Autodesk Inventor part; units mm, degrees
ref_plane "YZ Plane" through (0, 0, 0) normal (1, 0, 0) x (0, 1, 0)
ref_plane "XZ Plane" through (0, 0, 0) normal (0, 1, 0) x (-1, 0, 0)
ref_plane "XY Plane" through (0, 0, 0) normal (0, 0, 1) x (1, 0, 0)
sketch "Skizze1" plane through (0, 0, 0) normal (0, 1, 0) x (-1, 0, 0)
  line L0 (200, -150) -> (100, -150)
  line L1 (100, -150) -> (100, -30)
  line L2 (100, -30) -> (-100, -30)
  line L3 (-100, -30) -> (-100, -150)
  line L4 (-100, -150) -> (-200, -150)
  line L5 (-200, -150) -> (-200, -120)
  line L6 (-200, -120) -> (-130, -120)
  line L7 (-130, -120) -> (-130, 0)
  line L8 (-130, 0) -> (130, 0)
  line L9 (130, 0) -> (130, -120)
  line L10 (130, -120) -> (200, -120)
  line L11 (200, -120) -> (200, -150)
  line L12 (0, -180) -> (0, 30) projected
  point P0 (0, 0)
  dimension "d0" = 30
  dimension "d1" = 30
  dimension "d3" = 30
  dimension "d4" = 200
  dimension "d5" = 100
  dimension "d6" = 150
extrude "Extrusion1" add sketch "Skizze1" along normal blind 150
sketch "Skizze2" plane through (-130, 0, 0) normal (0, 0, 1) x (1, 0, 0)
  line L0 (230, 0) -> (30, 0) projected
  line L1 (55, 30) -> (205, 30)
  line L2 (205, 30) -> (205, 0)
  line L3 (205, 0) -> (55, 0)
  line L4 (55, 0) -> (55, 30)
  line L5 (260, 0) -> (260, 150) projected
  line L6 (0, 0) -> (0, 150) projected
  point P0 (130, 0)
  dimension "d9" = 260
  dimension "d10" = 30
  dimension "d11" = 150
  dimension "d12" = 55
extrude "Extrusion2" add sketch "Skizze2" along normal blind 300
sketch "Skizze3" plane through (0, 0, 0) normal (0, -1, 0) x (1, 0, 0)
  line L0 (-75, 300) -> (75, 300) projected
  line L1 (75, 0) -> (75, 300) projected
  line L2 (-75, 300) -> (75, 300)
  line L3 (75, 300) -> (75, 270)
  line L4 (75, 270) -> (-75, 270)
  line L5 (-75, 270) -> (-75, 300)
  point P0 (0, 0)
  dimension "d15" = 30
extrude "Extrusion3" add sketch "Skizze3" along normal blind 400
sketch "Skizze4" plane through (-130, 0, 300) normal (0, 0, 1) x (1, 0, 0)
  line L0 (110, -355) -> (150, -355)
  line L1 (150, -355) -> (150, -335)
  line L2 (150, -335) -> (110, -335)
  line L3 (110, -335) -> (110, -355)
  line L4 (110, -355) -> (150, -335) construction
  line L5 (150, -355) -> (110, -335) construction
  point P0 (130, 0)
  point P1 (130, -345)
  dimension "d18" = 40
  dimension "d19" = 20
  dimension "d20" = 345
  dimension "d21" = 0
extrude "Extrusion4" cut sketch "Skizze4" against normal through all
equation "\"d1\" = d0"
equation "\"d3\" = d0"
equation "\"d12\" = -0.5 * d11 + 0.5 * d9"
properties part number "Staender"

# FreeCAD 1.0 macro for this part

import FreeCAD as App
import Part
import Sketcher
from FreeCAD import Vector


def add_polygon(sketch, points):
    """Adds a closed chain of lines whose ends are joined by coincident constraints."""
    first, n = sketch.GeometryCount, len(points)
    for a, b in zip(points, points[1:] + points[:1]):
        sketch.addGeometry(Part.LineSegment(App.Vector(*a, 0), App.Vector(*b, 0)), False)
    for i in range(n):
        sketch.addConstraint(Sketcher.Constraint("Coincident", first + i, 2, first + (i + 1) % n, 1))

doc = App.newDocument("Part")
body = doc.addObject("PartDesign::Body", "Body")

# Sketch on XZ plane
sketch1 = body.newObject("Sketcher::SketchObject", "Sketch")
sketch1.AttachmentSupport = (doc.getObject("XZ_Plane"), [""])
sketch1.MapMode = "FlatFace"
add_polygon(sketch1, [(-100, -150), (-200, -150), (-200, -120), (-130, -120), (-130, 0), (130, 0), (130, -120), (200, -120), (200, -150), (100, -150), (100, -30), (-100, -30)])  # lines 0-11
sketch1.addConstraint([
    Sketcher.Constraint("Horizontal", 0),
    Sketcher.Constraint("Vertical", 1),
    Sketcher.Constraint("Horizontal", 2),
    Sketcher.Constraint("Vertical", 3),
    Sketcher.Constraint("Horizontal", 4),
    Sketcher.Constraint("Vertical", 5),
    Sketcher.Constraint("Horizontal", 6),
    Sketcher.Constraint("Vertical", 7),
    Sketcher.Constraint("Horizontal", 8),
    Sketcher.Constraint("Vertical", 9),
    Sketcher.Constraint("Horizontal", 10),
    Sketcher.Constraint("Vertical", 11),
    Sketcher.Constraint("Symmetric", 3, 2, 4, 2, -1, 1),
    Sketcher.Constraint("Symmetric", 1, 2, 6, 2, -2),
    Sketcher.Constraint("Symmetric", 8, 2, 11, 2, -2),
    Sketcher.Constraint("Equal", 5, 9),
    Sketcher.Constraint("DistanceX", 0, 2, 0, 1, 100.0),
    Sketcher.Constraint("DistanceX", 10, 2, 10, 1, 200.0),
    Sketcher.Constraint("DistanceY", 1, 1, 1, 2, 30.0),
    Sketcher.Constraint("DistanceY", 0, 2, -1, 1, 150.0),
    Sketcher.Constraint("DistanceX", 8, 2, 5, 2, 30.0),
])
pad1 = body.newObject("PartDesign::Pad", "Pad")
pad1.Profile = sketch1
pad1.Length = 150
pad1.Reversed = True

# Sketch on XY plane
sketch2 = body.newObject("Sketcher::SketchObject", "Sketch001")
sketch2.AttachmentSupport = (doc.getObject("XY_Plane"), [""])
sketch2.MapMode = "FlatFace"
add_polygon(sketch2, [(-75, 0), (75, 0), (75, 30), (-75, 30)])  # lines 0-3
sketch2.addConstraint([
    Sketcher.Constraint("Horizontal", 0),
    Sketcher.Constraint("Vertical", 1),
    Sketcher.Constraint("Horizontal", 2),
    Sketcher.Constraint("Vertical", 3),
    Sketcher.Constraint("Symmetric", 0, 2, 3, 2, -1, 1),
    Sketcher.Constraint("DistanceX", 0, 1, 0, 2, 150.0),
    Sketcher.Constraint("DistanceY", 1, 1, 1, 2, 30.0),
])
pad2 = body.newObject("PartDesign::Pad", "Pad001")
pad2.Profile = sketch2
pad2.Length = 300

# Sketch on XZ plane
sketch3 = body.newObject("Sketcher::SketchObject", "Sketch002")
sketch3.AttachmentSupport = (doc.getObject("XZ_Plane"), [""])
sketch3.MapMode = "FlatFace"
add_polygon(sketch3, [(75, 300), (-75, 300), (-75, 270), (75, 270)])  # lines 0-3
sketch3.addConstraint([
    Sketcher.Constraint("Horizontal", 0),
    Sketcher.Constraint("Vertical", 1),
    Sketcher.Constraint("Horizontal", 2),
    Sketcher.Constraint("Vertical", 3),
    Sketcher.Constraint("DistanceY", 1, 2, 1, 1, 30.0),
    Sketcher.Constraint("DistanceX", 0, 2, 0, 1, 150.0),
    Sketcher.Constraint("DistanceX", 0, 2, -1, 1, 75.0),
    Sketcher.Constraint("DistanceY", -1, 1, 0, 2, 300.0),
])
pad3 = body.newObject("PartDesign::Pad", "Pad002")
pad3.Profile = sketch3
pad3.Length = 400

# Sketch on XY plane
sketch4 = body.newObject("Sketcher::SketchObject", "Sketch003")
sketch4.AttachmentSupport = (doc.getObject("XY_Plane"), [""])
sketch4.MapMode = "FlatFace"
sketch4.AttachmentOffset = App.Placement(Vector(0, 0, 300), App.Rotation())
add_polygon(sketch4, [(-20, -335), (-20, -355), (20, -355), (20, -335)])  # lines 0-3
sketch4.addConstraint([
    Sketcher.Constraint("Vertical", 0),
    Sketcher.Constraint("Horizontal", 1),
    Sketcher.Constraint("Vertical", 2),
    Sketcher.Constraint("Horizontal", 3),
    Sketcher.Constraint("DistanceX", 1, 1, 1, 2, 40.0),
    Sketcher.Constraint("DistanceY", 0, 2, 0, 1, 20.0),
    Sketcher.Constraint("DistanceX", 0, 2, -1, 1, 20.0),
    Sketcher.Constraint("DistanceY", 0, 2, -1, 1, 355.0),
])
pocket1 = body.newObject("PartDesign::Pocket", "Pocket")
pocket1.Profile = sketch4
pocket1.Type = "ThroughAll"

doc.recompute()
